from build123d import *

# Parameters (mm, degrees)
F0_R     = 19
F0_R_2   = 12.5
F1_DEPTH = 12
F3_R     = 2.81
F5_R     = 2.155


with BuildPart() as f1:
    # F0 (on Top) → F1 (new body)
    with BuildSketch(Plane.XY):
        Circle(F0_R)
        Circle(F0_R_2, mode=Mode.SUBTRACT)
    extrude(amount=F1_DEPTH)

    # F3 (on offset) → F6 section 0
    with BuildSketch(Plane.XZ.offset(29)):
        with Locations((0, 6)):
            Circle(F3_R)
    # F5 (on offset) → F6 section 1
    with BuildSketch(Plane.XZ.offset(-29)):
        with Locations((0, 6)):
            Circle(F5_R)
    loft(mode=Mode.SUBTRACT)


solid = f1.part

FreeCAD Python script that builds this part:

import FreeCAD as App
import Part
import Sketcher

V = App.Vector

doc = App.newDocument("Part")
params = doc.addObject("Spreadsheet::Sheet", "Params")
for row, (alias, value) in enumerate([
    ("sketch1_diameter", "38 mm"),
    ("sketch1_diameter2", "25 mm"),
    ("pad1_length", "12 mm"),
    ("sketch2_diameter", "5.62 mm"),
    ("sketch3_diameter", "4.31 mm"),
], start=1):
    params.set(f"A{row}", alias)
    params.set(f"B{row}", "=" + value)
    params.setAlias(f"B{row}", alias)

body = doc.addObject("PartDesign::Body", "Body")

# Sketch on XY plane
sketch1 = body.newObject("Sketcher::SketchObject", "Sketch")
sketch1.AttachmentSupport = (doc.getObject("XY_Plane"), [""])
sketch1.MapMode = "FlatFace"
sketch1.addGeometry(Part.Circle(V(0, 0, 0), V(0, 0, 1), 19), False)
sketch1.addGeometry(Part.Circle(V(0, 0, 0), V(0, 0, 1), 12.5), False)
sketch1.addConstraint(Sketcher.Constraint("Coincident", 0, 3, -1, 1))
sketch1.addConstraint(Sketcher.Constraint("Coincident", 1, 3, -1, 1))
sketch1.addConstraint(Sketcher.Constraint("Diameter", 0, 38.0))
sketch1.addConstraint(Sketcher.Constraint("Diameter", 1, 25.0))
sketch1.setExpression("Constraints[2]", "Params.sketch1_diameter")
sketch1.setExpression("Constraints[3]", "Params.sketch1_diameter2")
pad1 = body.newObject("PartDesign::Pad", "Pad")
pad1.Profile = sketch1
pad1.setExpression("Length", "Params.pad1_length")

# Sketch on XZ plane
sketch2 = body.newObject("Sketcher::SketchObject", "Sketch001")
sketch2.AttachmentSupport = (doc.getObject("XZ_Plane"), [""])
sketch2.MapMode = "FlatFace"
sketch2.AttachmentOffset = App.Placement(V(0, 0, 29), App.Rotation())
sketch2.addGeometry(Part.Circle(V(0, 6, 0), V(0, 0, 1), 2.81), False)
sketch2.addConstraint(Sketcher.Constraint("PointOnObject", 0, 3, -2))
sketch2.addConstraint(Sketcher.Constraint("Diameter", 0, 5.62))
sketch2.addConstraint(Sketcher.Constraint("DistanceY", -1, 1, 0, 3, 6.0))
sketch2.setExpression("Constraints[1]", "Params.sketch2_diameter")

# Sketch on XZ plane
sketch3 = body.newObject("Sketcher::SketchObject", "Sketch002")
sketch3.AttachmentSupport = (doc.getObject("XZ_Plane"), [""])
sketch3.MapMode = "FlatFace"
sketch3.AttachmentOffset = App.Placement(V(0, 0, -29), App.Rotation())
sketch3.addGeometry(Part.Circle(V(0, 6, 0), V(0, 0, 1), 2.155), False)
sketch3.addConstraint(Sketcher.Constraint("PointOnObject", 0, 3, -2))
sketch3.addConstraint(Sketcher.Constraint("Diameter", 0, 4.31))
sketch3.addConstraint(Sketcher.Constraint("DistanceY", -1, 1, 0, 3, 6.0))
sketch3.setExpression("Constraints[1]", "Params.sketch3_diameter")

subtractiveloft = body.newObject("PartDesign::SubtractiveLoft", "SubtractiveLoft")
subtractiveloft.Profile = sketch2
subtractiveloft.Sections = [sketch3]

doc.recompute()
